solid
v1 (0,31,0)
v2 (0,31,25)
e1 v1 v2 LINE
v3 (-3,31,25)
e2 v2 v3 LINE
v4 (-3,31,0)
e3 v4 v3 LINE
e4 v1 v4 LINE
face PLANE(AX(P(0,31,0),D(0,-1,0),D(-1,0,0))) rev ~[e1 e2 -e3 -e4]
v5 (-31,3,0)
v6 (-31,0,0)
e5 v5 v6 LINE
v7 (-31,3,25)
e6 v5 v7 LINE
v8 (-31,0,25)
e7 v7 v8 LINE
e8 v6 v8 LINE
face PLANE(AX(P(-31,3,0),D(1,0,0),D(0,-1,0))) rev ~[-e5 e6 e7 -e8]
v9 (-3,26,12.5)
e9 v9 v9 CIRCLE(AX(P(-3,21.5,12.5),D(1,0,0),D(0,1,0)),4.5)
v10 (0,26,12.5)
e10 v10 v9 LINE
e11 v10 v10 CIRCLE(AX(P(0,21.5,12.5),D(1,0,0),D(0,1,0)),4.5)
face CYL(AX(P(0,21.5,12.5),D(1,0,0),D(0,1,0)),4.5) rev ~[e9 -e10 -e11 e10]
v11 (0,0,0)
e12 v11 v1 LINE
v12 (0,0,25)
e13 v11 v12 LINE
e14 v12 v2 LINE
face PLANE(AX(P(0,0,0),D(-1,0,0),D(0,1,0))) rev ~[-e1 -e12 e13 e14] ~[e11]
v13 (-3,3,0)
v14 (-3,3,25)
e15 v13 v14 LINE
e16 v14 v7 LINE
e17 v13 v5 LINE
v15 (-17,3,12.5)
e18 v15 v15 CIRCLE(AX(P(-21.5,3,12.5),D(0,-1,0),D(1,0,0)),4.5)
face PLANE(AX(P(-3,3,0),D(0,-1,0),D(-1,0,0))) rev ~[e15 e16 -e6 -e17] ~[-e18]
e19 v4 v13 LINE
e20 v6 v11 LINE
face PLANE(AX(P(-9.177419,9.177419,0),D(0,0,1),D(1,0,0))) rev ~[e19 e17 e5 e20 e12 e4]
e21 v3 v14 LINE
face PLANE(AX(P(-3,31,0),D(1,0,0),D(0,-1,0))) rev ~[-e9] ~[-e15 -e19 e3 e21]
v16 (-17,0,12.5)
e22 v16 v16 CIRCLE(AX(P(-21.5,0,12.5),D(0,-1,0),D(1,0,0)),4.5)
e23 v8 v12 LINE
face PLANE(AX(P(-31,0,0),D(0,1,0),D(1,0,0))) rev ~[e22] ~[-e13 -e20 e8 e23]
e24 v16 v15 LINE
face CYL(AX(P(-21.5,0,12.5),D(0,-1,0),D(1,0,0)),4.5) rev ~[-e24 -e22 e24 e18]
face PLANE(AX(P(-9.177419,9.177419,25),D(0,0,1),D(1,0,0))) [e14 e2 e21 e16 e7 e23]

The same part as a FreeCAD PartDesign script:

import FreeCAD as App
import Part
import Sketcher

doc = App.newDocument("Part")
body = doc.addObject("PartDesign::Body", "Body")

# Sketch on XY plane
sketch1 = doc.addObject("Sketcher::SketchObject", "Sketch")
body.addObject(sketch1)
sketch1.AttachmentSupport = (doc.XY_Plane, [""])
sketch1.MapMode = "FlatFace"
sketch1.addGeometry([
    Part.LineSegment(App.Vector(-31, 0, 0), App.Vector(0, 0, 0)),  # 0
    Part.LineSegment(App.Vector(0, 0, 0), App.Vector(0, 31, 0)),  # 1
    Part.LineSegment(App.Vector(0, 31, 0), App.Vector(-3, 31, 0)),  # 2
    Part.LineSegment(App.Vector(-3, 31, 0), App.Vector(-3, 3, 0)),  # 3
    Part.LineSegment(App.Vector(-3, 3, 0), App.Vector(-31, 3, 0)),  # 4
    Part.LineSegment(App.Vector(-31, 3, 0), App.Vector(-31, 0, 0)),  # 5
], False)
sketch1.addConstraint([
    Sketcher.Constraint("Coincident", 0, 2, 1, 1),
    Sketcher.Constraint("Coincident", 1, 2, 2, 1),
    Sketcher.Constraint("Coincident", 2, 2, 3, 1),
    Sketcher.Constraint("Coincident", 3, 2, 4, 1),
    Sketcher.Constraint("Coincident", 4, 2, 5, 1),
    Sketcher.Constraint("Coincident", 5, 2, 0, 1),
    Sketcher.Constraint("Horizontal", 0),
    Sketcher.Constraint("Vertical", 1),
    Sketcher.Constraint("Horizontal", 2),
    Sketcher.Constraint("Vertical", 3),
    Sketcher.Constraint("Horizontal", 4),
    Sketcher.Constraint("Vertical", 5),
    Sketcher.Constraint("Coincident", 0, 2, -1, 1),
    Sketcher.Constraint("Equal", 0, 1),
    Sketcher.Constraint("Equal", 4, 3),
    Sketcher.Constraint("DistanceX", 0, 1, 0, 2, 31.0),
    Sketcher.Constraint("DistanceX", 2, 2, 2, 1, 3.0),
])
pad1 = doc.addObject("PartDesign::Pad", "Pad")
body.addObject(pad1)
pad1.Profile = sketch1
pad1.Length = 25

# Sketch on XZ plane
sketch2 = doc.addObject("Sketcher::SketchObject", "Sketch001")
body.addObject(sketch2)
sketch2.AttachmentSupport = (doc.XZ_Plane, [""])
sketch2.MapMode = "FlatFace"
sketch2.addGeometry(Part.Circle(App.Vector(-21.5, 12.5, 0), App.Vector(0, 0, 1), 4.5), False)
sketch2.addConstraint([
    Sketcher.Constraint("Diameter", 0, 9.0),
    Sketcher.Constraint("DistanceX", 0, 3, -1, 1, 21.5),
    Sketcher.Constraint("DistanceY", -1, 1, 0, 3, 12.5),
])
pocket1 = doc.addObject("PartDesign::Pocket", "Pocket")
body.addObject(pocket1)
pocket1.Profile = sketch2
pocket1.Type = "ThroughAll"

# Sketch on YZ plane
sketch3 = doc.addObject("Sketcher::SketchObject", "Sketch002")
body.addObject(sketch3)
sketch3.AttachmentSupport = (doc.YZ_Plane, [""])
sketch3.MapMode = "FlatFace"
sketch3.addGeometry(Part.Circle(App.Vector(21.5, 12.5, 0), App.Vector(0, 0, 1), 4.5), False)
sketch3.addConstraint([
    Sketcher.Constraint("Diameter", 0, 9.0),
    Sketcher.Constraint("DistanceX", -1, 1, 0, 3, 21.5),
    Sketcher.Constraint("DistanceY", -1, 1, 0, 3, 12.5),
])
pocket2 = doc.addObject("PartDesign::Pocket", "Pocket001")
body.addObject(pocket2)
pocket2.Profile = sketch3
pocket2.Type = "ThroughAll"

doc.recompute()
